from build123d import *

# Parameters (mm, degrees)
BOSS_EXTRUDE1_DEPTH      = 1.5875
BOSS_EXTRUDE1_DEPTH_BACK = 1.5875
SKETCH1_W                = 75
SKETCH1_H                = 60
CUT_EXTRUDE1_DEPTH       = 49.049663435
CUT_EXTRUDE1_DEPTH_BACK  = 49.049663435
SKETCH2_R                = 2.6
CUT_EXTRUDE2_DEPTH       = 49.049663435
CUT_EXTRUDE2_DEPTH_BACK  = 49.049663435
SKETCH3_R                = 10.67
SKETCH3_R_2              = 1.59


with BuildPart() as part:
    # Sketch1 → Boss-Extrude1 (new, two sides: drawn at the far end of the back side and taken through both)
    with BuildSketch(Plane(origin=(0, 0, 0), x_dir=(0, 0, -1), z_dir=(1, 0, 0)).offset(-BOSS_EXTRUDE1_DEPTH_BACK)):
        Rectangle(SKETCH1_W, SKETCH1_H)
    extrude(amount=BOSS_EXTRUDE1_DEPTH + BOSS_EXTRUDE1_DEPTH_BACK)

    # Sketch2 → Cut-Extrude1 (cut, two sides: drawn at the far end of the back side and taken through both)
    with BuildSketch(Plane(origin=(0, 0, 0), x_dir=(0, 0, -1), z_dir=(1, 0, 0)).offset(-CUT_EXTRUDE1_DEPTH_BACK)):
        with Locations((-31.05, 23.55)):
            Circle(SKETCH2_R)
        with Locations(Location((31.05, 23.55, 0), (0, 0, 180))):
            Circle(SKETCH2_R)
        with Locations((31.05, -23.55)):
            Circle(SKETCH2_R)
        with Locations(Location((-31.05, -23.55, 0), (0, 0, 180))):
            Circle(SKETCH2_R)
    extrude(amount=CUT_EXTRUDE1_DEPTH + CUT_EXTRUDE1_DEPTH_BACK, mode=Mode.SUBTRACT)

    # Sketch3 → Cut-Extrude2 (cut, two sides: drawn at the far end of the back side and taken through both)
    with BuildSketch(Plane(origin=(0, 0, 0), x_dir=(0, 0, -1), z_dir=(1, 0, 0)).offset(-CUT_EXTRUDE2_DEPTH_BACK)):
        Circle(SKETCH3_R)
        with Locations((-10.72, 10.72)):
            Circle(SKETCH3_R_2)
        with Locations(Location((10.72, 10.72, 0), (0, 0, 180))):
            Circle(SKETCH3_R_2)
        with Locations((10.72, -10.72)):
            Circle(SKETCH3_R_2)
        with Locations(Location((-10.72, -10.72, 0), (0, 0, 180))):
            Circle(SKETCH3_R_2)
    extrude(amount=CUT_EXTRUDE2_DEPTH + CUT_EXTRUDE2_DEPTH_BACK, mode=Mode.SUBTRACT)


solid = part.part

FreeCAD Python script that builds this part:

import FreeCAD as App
import Part
import Sketcher
from FreeCAD import Vector
Q = App.Units.Quantity

doc = App.newDocument("Part")
body = doc.addObject("PartDesign::Body", "Body")

sketch1 = body.newObject("Sketcher::SketchObject", "Sketch")
sketch1.AttachmentSupport = (doc.getObject("YZ_Plane"), [""])
sketch1.MapMode = "FlatFace"
sketch1.addGeometry([
    Part.LineSegment(Vector(30, 38, 0), Vector(-30, 38, 0)),
    Part.LineSegment(Vector(-30, 38, 0), Vector(-30, -38, 0)),
    Part.LineSegment(Vector(-30, -38, 0), Vector(30, -38, 0)),
    Part.LineSegment(Vector(30, -38, 0), Vector(30, 38, 0)),
], False)
sketch1.addConstraint([
    Sketcher.Constraint("Coincident", 0, 2, 1, 1),
    Sketcher.Constraint("Coincident", 1, 2, 2, 1),
    Sketcher.Constraint("Coincident", 2, 2, 3, 1),
    Sketcher.Constraint("Coincident", 3, 2, 0, 1),
    Sketcher.Constraint("Horizontal", 0),
    Sketcher.Constraint("Vertical", 1),
    Sketcher.Constraint("Horizontal", 2),
    Sketcher.Constraint("Vertical", 3),
    Sketcher.Constraint("Symmetric", 0, 2, 2, 2, -1, 1),
    Sketcher.Constraint("DistanceX", 0, 2, 0, 1, Q("60 mm")),
    Sketcher.Constraint("DistanceY", 1, 2, 1, 1, Q("75 mm")),
])
pad1 = body.newObject("PartDesign::Pad", "Pad")
pad1.Profile = sketch1
pad1.Type = "TwoLengths"
pad1.Length = 1.5875
pad1.Length2 = 1.5875

sketch2 = body.newObject("Sketcher::SketchObject", "Sketch001")
sketch2.AttachmentSupport = (doc.getObject("YZ_Plane"), [""])
sketch2.MapMode = "FlatFace"
sketch2.addGeometry([
    Part.Circle(Vector(23.6, 31.1, 0), Vector(0, 0, 1), 2.6),
    Part.Circle(Vector(23.6, -31.1, 0), Vector(0, 0, 1), 2.6),
    Part.Circle(Vector(-23.6, -31.1, 0), Vector(0, 0, 1), 2.6),
    Part.Circle(Vector(-23.6, 31.1, 0), Vector(0, 0, 1), 2.6),
], False)
sketch2.addConstraint([
    Sketcher.Constraint("Equal", 0, 1),
    Sketcher.Constraint("Equal", 1, 2),
    Sketcher.Constraint("Equal", 2, 3),
    Sketcher.Constraint("Symmetric", 0, 3, 2, 3, -1, 1),
    Sketcher.Constraint("Symmetric", 1, 3, 3, 3, -1, 1),
    Sketcher.Constraint("Symmetric", 1, 3, 2, 3, -2),
    Sketcher.Constraint("Diameter", 0, Q("5.2 mm")),
    Sketcher.Constraint("DistanceY", 1, 3, 0, 3, Q("62.1 mm")),
    Sketcher.Constraint("DistanceX", 2, 3, 1, 3, Q("47.1 mm")),
])
pocket1 = body.newObject("PartDesign::Pocket", "Pocket")
pocket1.Profile = sketch2
pocket1.Type = "ThroughAll"
pocket1.Midplane = True

sketch3 = body.newObject("Sketcher::SketchObject", "Sketch002")
sketch3.AttachmentSupport = (doc.getObject("YZ_Plane"), [""])
sketch3.MapMode = "FlatFace"
sketch3.addGeometry([
    Part.Circle(Vector(0, 0, 0), Vector(0, 0, 1), 10.7),
    Part.Circle(Vector(10.7, 10.7, 0), Vector(0, 0, 1), 1.6),
    Part.Circle(Vector(10.7, -10.7, 0), Vector(0, 0, 1), 1.6),
    Part.Circle(Vector(-10.7, -10.7, 0), Vector(0, 0, 1), 1.6),
    Part.Circle(Vector(-10.7, 10.7, 0), Vector(0, 0, 1), 1.6),
], False)
sketch3.addConstraint([
    Sketcher.Constraint("Coincident", 0, 3, -1, 1),
    Sketcher.Constraint("Equal", 1, 2),
    Sketcher.Constraint("Equal", 2, 3),
    Sketcher.Constraint("Equal", 3, 4),
    Sketcher.Constraint("Symmetric", 1, 3, 3, 3, -1, 1),
    Sketcher.Constraint("Symmetric", 2, 3, 4, 3, -1, 1),
    Sketcher.Constraint("Symmetric", 2, 3, 3, 3, -2),
    Sketcher.Constraint("Diameter", 0, Q("21.34 mm")),
    Sketcher.Constraint("Diameter", 1, Q("3.18 mm")),
    Sketcher.Constraint("DistanceX", -1, 1, 1, 3, Q("10.72 mm")),
    Sketcher.Constraint("DistanceY", -1, 1, 1, 3, Q("10.72 mm")),
])
pocket2 = body.newObject("PartDesign::Pocket", "Pocket001")
pocket2.Profile = sketch3
pocket2.Type = "ThroughAll"
pocket2.Midplane = True

doc.recompute()
